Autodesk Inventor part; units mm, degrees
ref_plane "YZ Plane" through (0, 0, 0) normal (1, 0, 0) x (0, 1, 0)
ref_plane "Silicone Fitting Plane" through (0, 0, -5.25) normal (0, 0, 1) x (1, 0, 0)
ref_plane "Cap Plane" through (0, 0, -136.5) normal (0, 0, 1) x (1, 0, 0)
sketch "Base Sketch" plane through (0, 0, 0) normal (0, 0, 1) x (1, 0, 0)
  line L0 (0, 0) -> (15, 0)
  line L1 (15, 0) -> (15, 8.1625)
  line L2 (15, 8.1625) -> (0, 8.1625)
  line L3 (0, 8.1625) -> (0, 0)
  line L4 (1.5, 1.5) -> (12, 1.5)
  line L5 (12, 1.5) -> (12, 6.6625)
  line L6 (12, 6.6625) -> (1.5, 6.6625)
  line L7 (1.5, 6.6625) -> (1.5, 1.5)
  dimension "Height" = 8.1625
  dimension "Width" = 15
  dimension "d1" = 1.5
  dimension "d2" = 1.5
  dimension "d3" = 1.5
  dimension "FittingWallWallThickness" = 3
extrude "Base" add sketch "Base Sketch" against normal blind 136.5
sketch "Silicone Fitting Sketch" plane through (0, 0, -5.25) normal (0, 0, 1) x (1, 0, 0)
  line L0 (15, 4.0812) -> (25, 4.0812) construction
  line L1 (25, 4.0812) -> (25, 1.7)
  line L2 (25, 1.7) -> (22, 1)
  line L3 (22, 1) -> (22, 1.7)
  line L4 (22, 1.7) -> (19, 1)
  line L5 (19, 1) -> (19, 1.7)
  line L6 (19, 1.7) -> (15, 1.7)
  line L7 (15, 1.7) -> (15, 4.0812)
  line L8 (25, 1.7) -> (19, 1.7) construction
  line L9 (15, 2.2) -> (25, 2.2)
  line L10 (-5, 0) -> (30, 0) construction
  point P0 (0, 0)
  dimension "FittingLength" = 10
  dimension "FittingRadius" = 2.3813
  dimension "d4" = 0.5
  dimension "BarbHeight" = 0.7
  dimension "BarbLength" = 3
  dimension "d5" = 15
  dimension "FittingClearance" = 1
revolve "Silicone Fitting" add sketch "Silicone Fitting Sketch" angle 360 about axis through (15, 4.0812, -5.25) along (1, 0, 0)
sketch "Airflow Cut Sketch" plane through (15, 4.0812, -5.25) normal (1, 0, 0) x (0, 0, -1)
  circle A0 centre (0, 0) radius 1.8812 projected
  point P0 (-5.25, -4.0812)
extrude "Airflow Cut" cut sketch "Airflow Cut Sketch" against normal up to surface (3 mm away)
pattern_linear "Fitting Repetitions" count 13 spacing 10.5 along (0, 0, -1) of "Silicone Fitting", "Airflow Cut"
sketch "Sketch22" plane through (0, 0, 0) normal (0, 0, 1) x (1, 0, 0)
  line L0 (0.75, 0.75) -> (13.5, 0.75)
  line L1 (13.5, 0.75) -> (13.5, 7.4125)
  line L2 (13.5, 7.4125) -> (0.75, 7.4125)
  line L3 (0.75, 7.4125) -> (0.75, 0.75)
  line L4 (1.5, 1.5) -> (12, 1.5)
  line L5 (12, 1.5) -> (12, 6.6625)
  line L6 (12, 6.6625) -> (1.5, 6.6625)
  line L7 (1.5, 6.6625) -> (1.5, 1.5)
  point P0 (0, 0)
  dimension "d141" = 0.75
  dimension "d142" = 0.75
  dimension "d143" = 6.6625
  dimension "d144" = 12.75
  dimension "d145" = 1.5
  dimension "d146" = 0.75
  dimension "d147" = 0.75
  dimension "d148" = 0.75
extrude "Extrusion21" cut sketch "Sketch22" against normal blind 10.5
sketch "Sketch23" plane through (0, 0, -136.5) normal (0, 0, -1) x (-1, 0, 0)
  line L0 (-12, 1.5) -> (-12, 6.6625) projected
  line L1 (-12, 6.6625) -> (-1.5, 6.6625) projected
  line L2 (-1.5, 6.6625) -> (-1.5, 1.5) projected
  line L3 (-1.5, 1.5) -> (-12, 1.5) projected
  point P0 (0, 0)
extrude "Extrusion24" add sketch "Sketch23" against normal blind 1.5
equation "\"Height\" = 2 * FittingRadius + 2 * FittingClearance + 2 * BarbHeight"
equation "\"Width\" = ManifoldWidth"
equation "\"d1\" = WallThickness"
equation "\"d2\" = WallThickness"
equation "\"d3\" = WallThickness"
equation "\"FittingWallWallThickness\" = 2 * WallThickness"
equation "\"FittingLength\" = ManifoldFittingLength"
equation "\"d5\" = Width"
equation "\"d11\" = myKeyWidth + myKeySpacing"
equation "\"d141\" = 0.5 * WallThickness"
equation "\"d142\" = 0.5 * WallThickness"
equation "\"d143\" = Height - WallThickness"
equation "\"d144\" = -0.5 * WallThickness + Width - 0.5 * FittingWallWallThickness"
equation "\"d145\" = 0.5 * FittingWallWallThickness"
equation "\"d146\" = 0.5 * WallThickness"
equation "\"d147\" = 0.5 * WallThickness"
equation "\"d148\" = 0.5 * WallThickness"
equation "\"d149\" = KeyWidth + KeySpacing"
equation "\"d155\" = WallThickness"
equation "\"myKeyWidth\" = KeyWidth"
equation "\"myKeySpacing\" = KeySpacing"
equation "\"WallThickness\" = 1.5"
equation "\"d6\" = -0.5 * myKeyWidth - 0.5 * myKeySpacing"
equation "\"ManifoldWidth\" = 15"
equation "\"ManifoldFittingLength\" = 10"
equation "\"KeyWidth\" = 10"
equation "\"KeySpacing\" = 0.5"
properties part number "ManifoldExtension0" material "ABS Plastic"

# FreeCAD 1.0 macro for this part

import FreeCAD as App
import Part
import Sketcher


def add_polygon(sketch, points):
    """Adds a closed chain of lines whose ends are joined by coincident constraints."""
    first, n = sketch.GeometryCount, len(points)
    for a, b in zip(points, points[1:] + points[:1]):
        sketch.addGeometry(Part.LineSegment(App.Vector(*a, 0), App.Vector(*b, 0)), False)
    for i in range(n):
        sketch.addConstraint(Sketcher.Constraint("Coincident", first + i, 2, first + (i + 1) % n, 1))

doc = App.newDocument("Part")
params = doc.addObject("Spreadsheet::Sheet", "Params")
for row, (alias, value) in enumerate([
    ("sketch1_width", "15 mm"),
    ("pad1_length", "136.5 mm"),
    ("sketch2_width", "10 mm"),
    ("sketch2_height", "0.5 mm"),
    ("sketch2_height2", "0.7 mm"),
    ("revolution_angle", "360 deg"),
    ("pocket1_length", "3 mm"),
    ("linearpattern_pitch", "10.5 mm"),
    ("sketch4_width", "12.75 mm"),
    ("pocket2_length", "10.5 mm"),
    ("sketch5_width", "10.5 mm"),
    ("pad2_length", "1.5 mm"),
], start=1):
    params.set(f"A{row}", alias)
    params.set(f"B{row}", "=" + value)
    params.setAlias(f"B{row}", alias)

body = doc.addObject("PartDesign::Body", "Body")

# Sketch on XY plane
sketch1 = body.newObject("Sketcher::SketchObject", "Sketch")
sketch1.AttachmentSupport = (doc.getObject("XY_Plane"), [""])
sketch1.MapMode = "FlatFace"
add_polygon(sketch1, [(0, 8), (0, 0), (15, 0), (15, 8)])  # lines 0-3
add_polygon(sketch1, [(12, 2), (2, 2), (2, 7), (12, 7)])  # lines 4-7
sketch1.addConstraint(Sketcher.Constraint("Vertical", 0))
sketch1.addConstraint(Sketcher.Constraint("Horizontal", 1))
sketch1.addConstraint(Sketcher.Constraint("Vertical", 2))
sketch1.addConstraint(Sketcher.Constraint("Horizontal", 3))
sketch1.addConstraint(Sketcher.Constraint("Horizontal", 4))
sketch1.addConstraint(Sketcher.Constraint("Vertical", 5))
sketch1.addConstraint(Sketcher.Constraint("Horizontal", 6))
sketch1.addConstraint(Sketcher.Constraint("Vertical", 7))
sketch1.addConstraint(Sketcher.Constraint("Coincident", 0, 2, -1, 1))
sketch1.addConstraint(Sketcher.Constraint("DistanceX", 1, 1, 1, 2, 15.0))
sketch1.addConstraint(Sketcher.Constraint("DistanceX", 6, 2, 2, 2, 3.0))
sketch1.addConstraint(Sketcher.Constraint("DistanceX", -1, 1, 4, 2, 1.5))
sketch1.addConstraint(Sketcher.Constraint("DistanceY", -1, 1, 4, 2, 1.5))
sketch1.addConstraint(Sketcher.Constraint("DistanceY", 5, 2, 3, 2, 1.5))
sketch1.addConstraint(Sketcher.Constraint("DistanceY", 0, 2, 0, 1, 8.1625))
sketch1.setExpression("Constraints[17]", "Params.sketch1_width")
pad1 = body.newObject("PartDesign::Pad", "Pad")
pad1.Profile = sketch1
pad1.setExpression("Length", "Params.pad1_length")
pad1.Reversed = True

# Sketch on XY plane
sketch2 = body.newObject("Sketcher::SketchObject", "Sketch001")
sketch2.AttachmentSupport = (doc.getObject("XY_Plane"), [""])
sketch2.MapMode = "FlatFace"
sketch2.AttachmentOffset = App.Placement(App.Vector(0, 0, -5.25), App.Rotation())
add_polygon(sketch2, [(25, 1.7), (25, 2.2), (15, 2.2), (15, 1.7), (19, 1.7), (19, 1), (22, 1.7), (22, 1)])  # lines 0-7
sketch2.addGeometry(Part.LineSegment(App.Vector(15, 4.1, 0), App.Vector(25, 4.1, 0)), True)  # axis
sketch2.addConstraint(Sketcher.Constraint("Vertical", 0))
sketch2.addConstraint(Sketcher.Constraint("Horizontal", 1))
sketch2.addConstraint(Sketcher.Constraint("Vertical", 2))
sketch2.addConstraint(Sketcher.Constraint("Horizontal", 3))
sketch2.addConstraint(Sketcher.Constraint("Vertical", 4))
sketch2.addConstraint(Sketcher.Constraint("Vertical", 6))
sketch2.addConstraint(Sketcher.Constraint("Horizontal", 8))
sketch2.addConstraint(Sketcher.Constraint("Parallel", 5, 7))
sketch2.addConstraint(Sketcher.Constraint("Horizontal", 3, 2, 5, 2))
sketch2.addConstraint(Sketcher.Constraint("Horizontal", 4, 2, 6, 2))
sketch2.addConstraint(Sketcher.Constraint("Horizontal", 5, 2, 7, 2))
sketch2.addConstraint(Sketcher.Constraint("Vertical", 2, 2, 8, 1))
sketch2.addConstraint(Sketcher.Constraint("Vertical", 7, 2, 8, 2))
sketch2.addConstraint(Sketcher.Constraint("DistanceX", 1, 2, 1, 1, 10.0))
sketch2.addConstraint(Sketcher.Constraint("DistanceY", 0, 1, 0, 2, 0.5))
sketch2.addConstraint(Sketcher.Constraint("DistanceY", 4, 2, 4, 1, 0.7))
sketch2.addConstraint(Sketcher.Constraint("DistanceX", -1, 1, 1, 2, 15.0))
sketch2.addConstraint(Sketcher.Constraint("DistanceY", -1, 1, 4, 2, 1.0))
sketch2.addConstraint(Sketcher.Constraint("DistanceX", 3, 2, 5, 2, 3.0))
sketch2.addConstraint(Sketcher.Constraint("DistanceY", 2, 2, 8, 1, 2.3812))
sketch2.setExpression("Constraints[21]", "Params.sketch2_width")
sketch2.setExpression("Constraints[22]", "Params.sketch2_height")
sketch2.setExpression("Constraints[23]", "Params.sketch2_height2")
revolution = body.newObject("PartDesign::Revolution", "Revolution")
revolution.Profile = sketch2
revolution.ReferenceAxis = (sketch2, ["Axis0"])
revolution.setExpression("Angle", "Params.revolution_angle")

# Sketch on YZ plane
sketch3 = body.newObject("Sketcher::SketchObject", "Sketch002")
sketch3.AttachmentSupport = (doc.getObject("YZ_Plane"), [""])
sketch3.MapMode = "FlatFace"
sketch3.AttachmentOffset = App.Placement(App.Vector(0, 0, 15), App.Rotation())
sketch3.addGeometry(Part.Circle(App.Vector(4.1, -5.2, 0), App.Vector(0, 0, 1), 1.9), False)
sketch3.addConstraint(Sketcher.Constraint("Diameter", 0, 3.7624))
sketch3.addConstraint(Sketcher.Constraint("DistanceY", 0, 3, -1, 1, 5.25))
sketch3.addConstraint(Sketcher.Constraint("DistanceX", -1, 1, 0, 3, 4.0812))
pocket1 = body.newObject("PartDesign::Pocket", "Pocket")
pocket1.Profile = sketch3
pocket1.setExpression("Length", "Params.pocket1_length")
doc.recompute()

linearpattern = body.newObject("PartDesign::LinearPattern", "LinearPattern")
linearpattern.Originals = [revolution, pocket1]
linearpattern.Direction = (doc.getObject("Z_Axis"), [""])
linearpattern.Mode = "offset"
linearpattern.setExpression("Offset", "Params.linearpattern_pitch")
linearpattern.Occurrences = 13
linearpattern.Reversed = True
body.Tip = linearpattern

# Sketch on XY plane
sketch4 = body.newObject("Sketcher::SketchObject", "Sketch003")
sketch4.AttachmentSupport = (doc.getObject("XY_Plane"), [""])
sketch4.MapMode = "FlatFace"
add_polygon(sketch4, [(1, 7), (1, 1), (14, 1), (14, 7)])  # lines 0-3
add_polygon(sketch4, [(12, 2), (2, 2), (2, 7), (12, 7)])  # lines 4-7
sketch4.addConstraint(Sketcher.Constraint("Vertical", 0))
sketch4.addConstraint(Sketcher.Constraint("Horizontal", 1))
sketch4.addConstraint(Sketcher.Constraint("Vertical", 2))
sketch4.addConstraint(Sketcher.Constraint("Horizontal", 3))
sketch4.addConstraint(Sketcher.Constraint("Horizontal", 4))
sketch4.addConstraint(Sketcher.Constraint("Vertical", 5))
sketch4.addConstraint(Sketcher.Constraint("Horizontal", 6))
sketch4.addConstraint(Sketcher.Constraint("Vertical", 7))
sketch4.addConstraint(Sketcher.Constraint("DistanceX", 1, 1, 1, 2, 12.75))
sketch4.addConstraint(Sketcher.Constraint("DistanceX", -1, 1, 4, 2, 1.5))
sketch4.addConstraint(Sketcher.Constraint("DistanceY", -1, 1, 4, 2, 1.5))
sketch4.addConstraint(Sketcher.Constraint("DistanceX", 6, 2, 2, 2, 1.5))
sketch4.addConstraint(Sketcher.Constraint("DistanceX", -1, 1, 0, 2, 0.75))
sketch4.addConstraint(Sketcher.Constraint("DistanceY", -1, 1, 0, 2, 0.75))
sketch4.addConstraint(Sketcher.Constraint("DistanceY", 5, 2, 3, 2, 0.75))
sketch4.addConstraint(Sketcher.Constraint("DistanceY", 0, 2, 0, 1, 6.6625))
sketch4.setExpression("Constraints[16]", "Params.sketch4_width")
pocket2 = body.newObject("PartDesign::Pocket", "Pocket001")
pocket2.Profile = sketch4
pocket2.setExpression("Length", "Params.pocket2_length")

# Sketch on XY plane
sketch5 = body.newObject("Sketcher::SketchObject", "Sketch004")
sketch5.AttachmentSupport = (doc.getObject("XY_Plane"), [""])
sketch5.MapMode = "FlatFace"
sketch5.AttachmentOffset = App.Placement(App.Vector(0, 0, -136.5), App.Rotation())
add_polygon(sketch5, [(12, 7), (12, 2), (2, 2), (2, 7)])  # lines 0-3
sketch5.addConstraint(Sketcher.Constraint("Vertical", 0))
sketch5.addConstraint(Sketcher.Constraint("Horizontal", 1))
sketch5.addConstraint(Sketcher.Constraint("Vertical", 2))
sketch5.addConstraint(Sketcher.Constraint("Horizontal", 3))
sketch5.addConstraint(Sketcher.Constraint("DistanceX", 1, 2, 1, 1, 10.5))
sketch5.addConstraint(Sketcher.Constraint("DistanceX", -1, 1, 0, 2, 12.0))
sketch5.addConstraint(Sketcher.Constraint("DistanceY", -1, 1, 0, 2, 1.5))
sketch5.addConstraint(Sketcher.Constraint("DistanceY", 0, 2, 0, 1, 5.1625))
sketch5.setExpression("Constraints[8]", "Params.sketch5_width")
pad2 = body.newObject("PartDesign::Pad", "Pad001")
pad2.Profile = sketch5
pad2.setExpression("Length", "Params.pad2_length")

doc.recompute()
